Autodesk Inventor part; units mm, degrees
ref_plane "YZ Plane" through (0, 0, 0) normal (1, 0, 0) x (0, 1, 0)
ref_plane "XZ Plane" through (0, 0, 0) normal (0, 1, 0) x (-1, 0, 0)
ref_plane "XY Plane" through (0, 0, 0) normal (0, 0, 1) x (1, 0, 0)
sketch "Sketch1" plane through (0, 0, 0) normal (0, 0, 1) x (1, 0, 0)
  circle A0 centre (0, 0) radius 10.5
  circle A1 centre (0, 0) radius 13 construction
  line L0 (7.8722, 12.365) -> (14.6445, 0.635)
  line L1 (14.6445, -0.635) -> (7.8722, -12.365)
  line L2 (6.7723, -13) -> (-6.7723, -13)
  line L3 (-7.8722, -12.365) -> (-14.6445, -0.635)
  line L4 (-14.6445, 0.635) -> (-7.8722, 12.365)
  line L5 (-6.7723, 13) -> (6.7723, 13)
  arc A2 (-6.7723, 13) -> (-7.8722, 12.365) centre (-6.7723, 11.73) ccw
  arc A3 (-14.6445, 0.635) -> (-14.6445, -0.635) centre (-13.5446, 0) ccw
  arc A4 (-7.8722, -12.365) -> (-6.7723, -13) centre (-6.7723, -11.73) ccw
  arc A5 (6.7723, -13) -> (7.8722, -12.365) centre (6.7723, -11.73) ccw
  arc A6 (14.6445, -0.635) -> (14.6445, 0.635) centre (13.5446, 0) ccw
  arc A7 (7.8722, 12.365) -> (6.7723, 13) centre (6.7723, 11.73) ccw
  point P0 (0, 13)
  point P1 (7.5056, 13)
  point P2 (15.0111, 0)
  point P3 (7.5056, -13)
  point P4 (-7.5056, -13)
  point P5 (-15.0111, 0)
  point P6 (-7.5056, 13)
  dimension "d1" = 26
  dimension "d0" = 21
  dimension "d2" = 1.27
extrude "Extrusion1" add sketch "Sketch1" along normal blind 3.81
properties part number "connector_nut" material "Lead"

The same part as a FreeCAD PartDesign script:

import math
import FreeCAD as App
import Part
import Sketcher

V = App.Vector
Q = App.Units.Quantity

doc = App.newDocument("Part")
params = doc.addObject("Spreadsheet::Sheet", "Params")
for row, (alias, value) in enumerate([
    ("sketch1_radius", "0.05 in"),
    ("pad1_length", "0.15 in"),
], start=1):
    params.set(f"A{row}", alias)
    params.set(f"B{row}", "=" + value)
    params.setAlias(f"B{row}", alias)

body = doc.addObject("PartDesign::Body", "Body")

# Sketch on XY plane
sketch1 = body.newObject("Sketcher::SketchObject", "Sketch")
sketch1.AttachmentSupport = (doc.getObject("XY_Plane"), [""])
sketch1.MapMode = "FlatFace"
sketch1.addGeometry([
    Part.LineSegment(V(14.6, 0.6, 0), V(7.9, 12.4, 0)),  # 0
    Part.ArcOfCircle(Part.Circle(V(6.8, 11.7, 0), V(0, 0, 1), 1.3), math.radians(30), math.radians(90)),  # 1
    Part.LineSegment(V(6.8, 13, 0), V(-6.8, 13, 0)),  # 2
    Part.ArcOfCircle(Part.Circle(V(-6.8, 11.7, 0), V(0, 0, 1), 1.3), math.radians(90), math.radians(150)),  # 3
    Part.LineSegment(V(-7.9, 12.4, 0), V(-14.6, 0.6, 0)),  # 4
    Part.ArcOfCircle(Part.Circle(V(-13.5, 0, 0), V(0, 0, 1), 1.3), math.radians(150), math.radians(210)),  # 5
    Part.LineSegment(V(-14.6, -0.6, 0), V(-7.9, -12.4, 0)),  # 6
    Part.ArcOfCircle(Part.Circle(V(-6.8, -11.7, 0), V(0, 0, 1), 1.3), math.radians(-150), math.radians(-90)),  # 7
    Part.LineSegment(V(-6.8, -13, 0), V(6.8, -13, 0)),  # 8
    Part.ArcOfCircle(Part.Circle(V(6.8, -11.7, 0), V(0, 0, 1), 1.3), math.radians(-90), math.radians(-30)),  # 9
    Part.LineSegment(V(7.9, -12.4, 0), V(14.6, -0.6, 0)),  # 10
    Part.ArcOfCircle(Part.Circle(V(13.5, 0, 0), V(0, 0, 1), 1.3), math.radians(-30), math.radians(30)),  # 11
    Part.Circle(V(0, 0, 0), V(0, 0, 1), 10.5),  # 12
], False)
sketch1.addConstraint([
    Sketcher.Constraint("Tangent", 0, 2, 1, 1),
    Sketcher.Constraint("Tangent", 1, 2, 2, 1),
    Sketcher.Constraint("Tangent", 2, 2, 3, 1),
    Sketcher.Constraint("Tangent", 3, 2, 4, 1),
    Sketcher.Constraint("Tangent", 4, 2, 5, 1),
    Sketcher.Constraint("Tangent", 5, 2, 6, 1),
    Sketcher.Constraint("Tangent", 6, 2, 7, 1),
    Sketcher.Constraint("Tangent", 7, 2, 8, 1),
    Sketcher.Constraint("Tangent", 8, 2, 9, 1),
    Sketcher.Constraint("Tangent", 9, 2, 10, 1),
    Sketcher.Constraint("Tangent", 10, 2, 11, 1),
    Sketcher.Constraint("Tangent", 11, 2, 0, 1),
    Sketcher.Constraint("Horizontal", 2),
    Sketcher.Constraint("Horizontal", 8),
    Sketcher.Constraint("Coincident", 12, 3, -1, 1),
    Sketcher.Constraint("Equal", 1, 3),
    Sketcher.Constraint("Equal", 3, 5),
    Sketcher.Constraint("Equal", 5, 7),
    Sketcher.Constraint("Equal", 7, 9),
    Sketcher.Constraint("Equal", 9, 11),
    Sketcher.Constraint("Symmetric", 1, 3, 7, 3, -1, 1),
    Sketcher.Constraint("Symmetric", 5, 3, 11, 3, -1, 1),
    Sketcher.Constraint("Symmetric", 0, 2, 3, 2, -2),
    Sketcher.Constraint("Parallel", 4, 10),
    Sketcher.Constraint("Radius", 1, Q("0.05 in")),
    Sketcher.Constraint("Diameter", 12, 21.0),
    Sketcher.Constraint("DistanceY", 5, 2, 4, 2, Q("0.05 in")),
    Sketcher.Constraint("DistanceX", 2, 2, 2, 1, 13.5446),
    Sketcher.Constraint("DistanceY", -1, 1, 1, 3, Q("0.4618 in")),
])
sketch1.setExpression("Constraints[24]", "Params.sketch1_radius")
pad1 = body.newObject("PartDesign::Pad", "Pad")
pad1.Profile = sketch1
pad1.setExpression("Length", "Params.pad1_length")

doc.recompute()
